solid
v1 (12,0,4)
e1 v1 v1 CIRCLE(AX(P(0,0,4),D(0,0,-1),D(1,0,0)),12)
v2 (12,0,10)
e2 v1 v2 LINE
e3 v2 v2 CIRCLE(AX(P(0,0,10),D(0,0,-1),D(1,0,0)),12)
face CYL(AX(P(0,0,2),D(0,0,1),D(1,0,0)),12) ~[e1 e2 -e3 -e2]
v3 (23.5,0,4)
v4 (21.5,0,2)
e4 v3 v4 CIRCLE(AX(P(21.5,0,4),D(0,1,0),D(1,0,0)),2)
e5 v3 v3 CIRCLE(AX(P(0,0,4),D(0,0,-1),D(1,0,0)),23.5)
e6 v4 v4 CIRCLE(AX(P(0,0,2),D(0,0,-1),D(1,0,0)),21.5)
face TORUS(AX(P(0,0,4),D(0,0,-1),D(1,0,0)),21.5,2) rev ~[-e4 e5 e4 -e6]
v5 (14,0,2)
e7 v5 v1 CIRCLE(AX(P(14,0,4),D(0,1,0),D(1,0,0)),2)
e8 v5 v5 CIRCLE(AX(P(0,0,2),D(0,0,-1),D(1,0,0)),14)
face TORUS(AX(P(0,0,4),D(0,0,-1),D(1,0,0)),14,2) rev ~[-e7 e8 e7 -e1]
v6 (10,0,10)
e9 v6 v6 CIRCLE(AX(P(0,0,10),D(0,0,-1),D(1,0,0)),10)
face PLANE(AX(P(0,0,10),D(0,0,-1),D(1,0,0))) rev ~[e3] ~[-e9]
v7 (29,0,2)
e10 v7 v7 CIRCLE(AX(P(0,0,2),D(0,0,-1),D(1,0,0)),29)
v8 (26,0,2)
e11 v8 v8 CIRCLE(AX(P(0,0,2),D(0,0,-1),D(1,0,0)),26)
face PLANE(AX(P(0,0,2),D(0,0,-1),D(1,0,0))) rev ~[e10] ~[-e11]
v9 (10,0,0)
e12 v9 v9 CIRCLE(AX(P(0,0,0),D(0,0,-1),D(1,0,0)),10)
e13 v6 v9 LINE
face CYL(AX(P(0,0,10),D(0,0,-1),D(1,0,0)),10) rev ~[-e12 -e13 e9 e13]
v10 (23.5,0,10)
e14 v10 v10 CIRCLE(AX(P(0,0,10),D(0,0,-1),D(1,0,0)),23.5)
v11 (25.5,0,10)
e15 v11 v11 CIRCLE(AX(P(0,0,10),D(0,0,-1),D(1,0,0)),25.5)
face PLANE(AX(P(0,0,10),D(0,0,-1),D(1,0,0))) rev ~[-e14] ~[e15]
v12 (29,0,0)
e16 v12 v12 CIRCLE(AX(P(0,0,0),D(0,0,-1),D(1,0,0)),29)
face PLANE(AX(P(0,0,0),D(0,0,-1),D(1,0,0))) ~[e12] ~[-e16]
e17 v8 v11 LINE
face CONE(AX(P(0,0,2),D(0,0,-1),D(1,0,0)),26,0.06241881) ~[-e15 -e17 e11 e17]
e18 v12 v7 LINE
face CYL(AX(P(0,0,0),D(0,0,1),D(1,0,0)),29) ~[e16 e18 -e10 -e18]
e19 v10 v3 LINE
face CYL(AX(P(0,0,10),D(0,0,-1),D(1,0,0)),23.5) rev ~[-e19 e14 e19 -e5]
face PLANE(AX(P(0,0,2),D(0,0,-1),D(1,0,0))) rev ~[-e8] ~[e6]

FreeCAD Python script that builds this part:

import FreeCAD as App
import Part
import Sketcher

V = App.Vector
Q = App.Units.Quantity


def edges_at(feature, points):
    """Names of the edges that pass closest to the given points."""
    edges = feature.Shape.Edges
    near = lambda p: min(range(len(edges)), key=lambda i: edges[i].distToShape(Part.Vertex(*p))[0])
    return sorted({f"Edge{near(p) + 1}" for p in points})


def add_polygon(sketch, points):
    """Adds a closed chain of lines whose ends are joined by coincident constraints."""
    first, n = sketch.GeometryCount, len(points)
    for a, b in zip(points, points[1:] + points[:1]):
        sketch.addGeometry(Part.LineSegment(App.Vector(*a, 0), App.Vector(*b, 0)), False)
    for i in range(n):
        sketch.addConstraint(Sketcher.Constraint("Coincident", first + i, 2, first + (i + 1) % n, 1))

doc = App.newDocument("Part")
body = doc.addObject("PartDesign::Body", "Body")

# Sketch on XZ plane
sketch1 = body.newObject("Sketcher::SketchObject", "Sketch")
sketch1.AttachmentSupport = (doc.getObject("XZ_Plane"), [""])
sketch1.MapMode = "FlatFace"
add_polygon(sketch1, [(12, 10), (10, 10), (10, 0), (29, 0), (29, 2), (26, 2), (25.5, 10), (23.5, 10), (23.5, 2), (12, 2)])  # lines 0-9
sketch1.addConstraint(Sketcher.Constraint("Horizontal", 0))
sketch1.addConstraint(Sketcher.Constraint("Vertical", 1))
sketch1.addConstraint(Sketcher.Constraint("Horizontal", 2))
sketch1.addConstraint(Sketcher.Constraint("Vertical", 3))
sketch1.addConstraint(Sketcher.Constraint("Horizontal", 4))
sketch1.addConstraint(Sketcher.Constraint("Horizontal", 6))
sketch1.addConstraint(Sketcher.Constraint("Vertical", 7))
sketch1.addConstraint(Sketcher.Constraint("Horizontal", 8))
sketch1.addConstraint(Sketcher.Constraint("Vertical", 9))
sketch1.addConstraint(Sketcher.Constraint("PointOnObject", 1, 2, -1))
sketch1.addConstraint(Sketcher.Constraint("Horizontal", 0, 2, 5, 2))
sketch1.addConstraint(Sketcher.Constraint("Horizontal", 4, 2, 7, 2))
sketch1.addConstraint(Sketcher.Constraint("Equal", 0, 6))
sketch1.addConstraint(Sketcher.Constraint("Equal", 6, 3))
sketch1.addConstraint(Sketcher.Constraint("DistanceX", 0, 2, 0, 1, Q("2 mm")))
sketch1.addConstraint(Sketcher.Constraint("DistanceX", 2, 1, 2, 2, Q("19 mm")))
sketch1.addConstraint(Sketcher.Constraint("DistanceX", 4, 2, 4, 1, Q("3 mm")))
sketch1.addConstraint(Sketcher.Constraint("DistanceY", 1, 2, 1, 1, Q("10 mm")))
sketch1.addConstraint(Sketcher.Constraint("DistanceX", 8, 2, 8, 1, Q("11.5 mm")))
sketch1.addConstraint(Sketcher.Constraint("DistanceX", -1, 1, 0, 2, Q("10 mm")))
revolution = body.newObject("PartDesign::Revolution", "Revolution")
revolution.Profile = sketch1
revolution.ReferenceAxis = (sketch1, ["V_Axis"])
revolution.Angle = 360
doc.recompute()

fillet = body.newObject("PartDesign::Fillet", "Fillet")
fillet.Base = (revolution, edges_at(revolution, [(-12, 0, 2), (-23.5, 0, 2)]))
fillet.Radius = 2

doc.recompute()
